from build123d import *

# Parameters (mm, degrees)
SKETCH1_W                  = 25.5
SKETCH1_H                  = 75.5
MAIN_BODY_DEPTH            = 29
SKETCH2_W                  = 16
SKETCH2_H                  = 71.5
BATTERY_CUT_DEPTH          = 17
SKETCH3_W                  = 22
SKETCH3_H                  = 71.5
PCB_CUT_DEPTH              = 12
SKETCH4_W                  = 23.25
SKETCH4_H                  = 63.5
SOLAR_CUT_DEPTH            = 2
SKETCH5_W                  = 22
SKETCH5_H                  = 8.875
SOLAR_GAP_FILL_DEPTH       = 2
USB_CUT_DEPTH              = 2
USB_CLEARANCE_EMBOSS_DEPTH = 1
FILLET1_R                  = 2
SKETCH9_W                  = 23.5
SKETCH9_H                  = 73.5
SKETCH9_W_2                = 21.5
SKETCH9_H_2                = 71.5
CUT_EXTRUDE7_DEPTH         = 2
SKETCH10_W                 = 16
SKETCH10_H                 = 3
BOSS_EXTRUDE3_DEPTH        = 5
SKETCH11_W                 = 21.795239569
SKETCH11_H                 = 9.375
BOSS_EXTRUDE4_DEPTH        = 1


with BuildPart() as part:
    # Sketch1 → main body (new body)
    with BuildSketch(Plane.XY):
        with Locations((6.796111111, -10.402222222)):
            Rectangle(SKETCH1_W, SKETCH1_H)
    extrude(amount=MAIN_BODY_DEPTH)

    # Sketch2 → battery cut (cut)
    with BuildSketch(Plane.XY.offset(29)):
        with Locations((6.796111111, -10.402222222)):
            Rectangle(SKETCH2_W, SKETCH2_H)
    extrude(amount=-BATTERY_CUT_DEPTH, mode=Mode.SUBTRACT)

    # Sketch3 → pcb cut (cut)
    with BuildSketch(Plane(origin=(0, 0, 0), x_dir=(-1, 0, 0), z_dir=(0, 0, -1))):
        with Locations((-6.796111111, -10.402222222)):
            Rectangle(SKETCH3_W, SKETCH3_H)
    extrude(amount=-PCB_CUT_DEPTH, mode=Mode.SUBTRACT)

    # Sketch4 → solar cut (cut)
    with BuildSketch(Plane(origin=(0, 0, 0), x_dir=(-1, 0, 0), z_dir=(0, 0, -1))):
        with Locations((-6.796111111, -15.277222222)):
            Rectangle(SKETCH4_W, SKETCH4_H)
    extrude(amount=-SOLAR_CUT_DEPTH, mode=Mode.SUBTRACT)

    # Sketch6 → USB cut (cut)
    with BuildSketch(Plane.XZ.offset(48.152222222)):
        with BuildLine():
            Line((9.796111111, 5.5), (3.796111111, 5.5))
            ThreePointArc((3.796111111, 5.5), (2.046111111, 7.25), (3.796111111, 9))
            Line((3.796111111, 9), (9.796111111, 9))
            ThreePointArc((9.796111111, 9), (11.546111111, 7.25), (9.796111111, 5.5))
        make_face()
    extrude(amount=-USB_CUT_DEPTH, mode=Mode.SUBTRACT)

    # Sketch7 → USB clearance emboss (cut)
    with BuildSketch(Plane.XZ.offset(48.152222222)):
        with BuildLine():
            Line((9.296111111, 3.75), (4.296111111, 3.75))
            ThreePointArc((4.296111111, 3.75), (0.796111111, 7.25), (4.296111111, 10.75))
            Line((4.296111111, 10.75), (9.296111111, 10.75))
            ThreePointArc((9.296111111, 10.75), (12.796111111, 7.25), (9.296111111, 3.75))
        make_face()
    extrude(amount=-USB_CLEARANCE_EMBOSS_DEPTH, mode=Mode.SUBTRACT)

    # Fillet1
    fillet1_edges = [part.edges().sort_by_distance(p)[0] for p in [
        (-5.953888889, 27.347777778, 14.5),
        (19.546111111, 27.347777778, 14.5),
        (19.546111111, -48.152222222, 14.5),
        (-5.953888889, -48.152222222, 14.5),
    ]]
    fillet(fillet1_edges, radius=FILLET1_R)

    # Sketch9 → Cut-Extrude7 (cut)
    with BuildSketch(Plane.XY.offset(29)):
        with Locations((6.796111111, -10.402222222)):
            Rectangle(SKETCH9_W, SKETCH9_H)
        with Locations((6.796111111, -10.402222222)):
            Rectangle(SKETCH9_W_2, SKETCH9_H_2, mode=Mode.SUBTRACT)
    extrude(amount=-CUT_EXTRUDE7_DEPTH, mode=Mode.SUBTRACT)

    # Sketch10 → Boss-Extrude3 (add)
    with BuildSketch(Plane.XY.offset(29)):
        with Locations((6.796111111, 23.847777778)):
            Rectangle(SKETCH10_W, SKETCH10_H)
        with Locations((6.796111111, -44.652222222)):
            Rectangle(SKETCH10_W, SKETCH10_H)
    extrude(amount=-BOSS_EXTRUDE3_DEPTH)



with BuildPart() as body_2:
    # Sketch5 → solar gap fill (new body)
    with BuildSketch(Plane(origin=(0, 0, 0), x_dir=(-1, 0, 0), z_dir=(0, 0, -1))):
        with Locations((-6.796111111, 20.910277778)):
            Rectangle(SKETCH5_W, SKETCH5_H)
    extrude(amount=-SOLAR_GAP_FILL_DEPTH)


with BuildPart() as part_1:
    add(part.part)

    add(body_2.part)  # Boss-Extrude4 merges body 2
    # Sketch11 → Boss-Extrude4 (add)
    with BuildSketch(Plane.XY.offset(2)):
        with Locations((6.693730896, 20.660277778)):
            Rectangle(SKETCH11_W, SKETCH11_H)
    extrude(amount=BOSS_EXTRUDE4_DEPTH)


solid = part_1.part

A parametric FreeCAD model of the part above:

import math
import FreeCAD as App
import Part
import Sketcher

V = App.Vector


def edges_at(feature, points):
    """Names of the edges that pass closest to the given points."""
    edges = feature.Shape.Edges
    near = lambda p: min(range(len(edges)), key=lambda i: edges[i].distToShape(Part.Vertex(*p))[0])
    return sorted({f"Edge{near(p) + 1}" for p in points})

doc = App.newDocument("Part")
body = doc.addObject("PartDesign::Body", "Body")

# Sketch on XY plane
sketch1 = doc.addObject("Sketcher::SketchObject", "Sketch")
body.addObject(sketch1)
sketch1.AttachmentSupport = (doc.XY_Plane, [""])
sketch1.MapMode = "FlatFace"
sketch1.addGeometry([
    Part.LineSegment(V(-5.953889, 27.347778, 0), V(-5.953889, -48.152222, 0)),
    Part.LineSegment(V(-5.953889, -48.152222, 0), V(19.546111, -48.152222, 0)),
    Part.LineSegment(V(19.546111, -48.152222, 0), V(19.546111, 27.347778, 0)),
    Part.LineSegment(V(19.546111, 27.347778, 0), V(-5.953889, 27.347778, 0)),
], False)
sketch1.addConstraint([
    Sketcher.Constraint("Coincident", 0, 2, 1, 1),
    Sketcher.Constraint("Coincident", 1, 2, 2, 1),
    Sketcher.Constraint("Coincident", 2, 2, 3, 1),
    Sketcher.Constraint("Coincident", 3, 2, 0, 1),
    Sketcher.Constraint("Vertical", 0),
    Sketcher.Constraint("Horizontal", 1),
    Sketcher.Constraint("Vertical", 2),
    Sketcher.Constraint("Horizontal", 3),
    Sketcher.Constraint("DistanceX", 1, 1, 1, 2, 25.5),
    Sketcher.Constraint("DistanceY", 0, 2, 0, 1, 75.5),
    Sketcher.Constraint("DistanceX", 0, 2, -1, 1, 5.953889),
    Sketcher.Constraint("DistanceY", 0, 2, -1, 1, 48.152222),
])
pad1 = doc.addObject("PartDesign::Pad", "Pad")
body.addObject(pad1)
pad1.Profile = sketch1
pad1.Length = 29

# Sketch on XY plane
sketch2 = doc.addObject("Sketcher::SketchObject", "Sketch001")
body.addObject(sketch2)
sketch2.AttachmentSupport = (doc.XY_Plane, [""])
sketch2.MapMode = "FlatFace"
sketch2.AttachmentOffset = App.Placement(V(0, 0, 29), App.Rotation())
sketch2.addGeometry([
    Part.LineSegment(V(-1.203889, 25.347778, 0), V(-1.203889, -46.152222, 0)),
    Part.LineSegment(V(-1.203889, -46.152222, 0), V(14.796111, -46.152222, 0)),
    Part.LineSegment(V(14.796111, -46.152222, 0), V(14.796111, 25.347778, 0)),
    Part.LineSegment(V(14.796111, 25.347778, 0), V(-1.203889, 25.347778, 0)),
], False)
sketch2.addConstraint([
    Sketcher.Constraint("Coincident", 0, 2, 1, 1),
    Sketcher.Constraint("Coincident", 1, 2, 2, 1),
    Sketcher.Constraint("Coincident", 2, 2, 3, 1),
    Sketcher.Constraint("Coincident", 3, 2, 0, 1),
    Sketcher.Constraint("Vertical", 0),
    Sketcher.Constraint("Horizontal", 1),
    Sketcher.Constraint("Vertical", 2),
    Sketcher.Constraint("Horizontal", 3),
    Sketcher.Constraint("DistanceX", 1, 1, 1, 2, 16.0),
    Sketcher.Constraint("DistanceY", 0, 2, 0, 1, 71.5),
    Sketcher.Constraint("DistanceX", 0, 2, -1, 1, 1.203889),
    Sketcher.Constraint("DistanceY", 0, 2, -1, 1, 46.152222),
])
pocket1 = doc.addObject("PartDesign::Pocket", "Pocket")
body.addObject(pocket1)
pocket1.Profile = sketch2
pocket1.Length = 17

# Sketch on XY plane
sketch3 = doc.addObject("Sketcher::SketchObject", "Sketch002")
body.addObject(sketch3)
sketch3.AttachmentSupport = (doc.XY_Plane, [""])
sketch3.MapMode = "FlatFace"
sketch3.addGeometry([
    Part.LineSegment(V(17.796111, 25.347778, 0), V(17.796111, -46.152222, 0)),
    Part.LineSegment(V(17.796111, -46.152222, 0), V(-4.203889, -46.152222, 0)),
    Part.LineSegment(V(-4.203889, -46.152222, 0), V(-4.203889, 25.347778, 0)),
    Part.LineSegment(V(-4.203889, 25.347778, 0), V(17.796111, 25.347778, 0)),
], False)
sketch3.addConstraint([
    Sketcher.Constraint("Coincident", 0, 2, 1, 1),
    Sketcher.Constraint("Coincident", 1, 2, 2, 1),
    Sketcher.Constraint("Coincident", 2, 2, 3, 1),
    Sketcher.Constraint("Coincident", 3, 2, 0, 1),
    Sketcher.Constraint("Vertical", 0),
    Sketcher.Constraint("Horizontal", 1),
    Sketcher.Constraint("Vertical", 2),
    Sketcher.Constraint("Horizontal", 3),
    Sketcher.Constraint("DistanceX", 1, 2, 1, 1, 22.0),
    Sketcher.Constraint("DistanceY", 0, 2, 0, 1, 71.5),
    Sketcher.Constraint("DistanceX", -1, 1, 0, 2, 17.796111),
    Sketcher.Constraint("DistanceY", 0, 2, -1, 1, 46.152222),
])
pocket2 = doc.addObject("PartDesign::Pocket", "Pocket001")
body.addObject(pocket2)
pocket2.Profile = sketch3
pocket2.Length = 12
pocket2.Reversed = True

# Sketch on XY plane
sketch4 = doc.addObject("Sketcher::SketchObject", "Sketch003")
body.addObject(sketch4)
sketch4.AttachmentSupport = (doc.XY_Plane, [""])
sketch4.MapMode = "FlatFace"
sketch4.addGeometry([
    Part.LineSegment(V(18.421111, 16.472778, 0), V(18.421111, -47.027222, 0)),
    Part.LineSegment(V(18.421111, -47.027222, 0), V(-4.828889, -47.027222, 0)),
    Part.LineSegment(V(-4.828889, -47.027222, 0), V(-4.828889, 16.472778, 0)),
    Part.LineSegment(V(-4.828889, 16.472778, 0), V(18.421111, 16.472778, 0)),
], False)
sketch4.addConstraint([
    Sketcher.Constraint("Coincident", 0, 2, 1, 1),
    Sketcher.Constraint("Coincident", 1, 2, 2, 1),
    Sketcher.Constraint("Coincident", 2, 2, 3, 1),
    Sketcher.Constraint("Coincident", 3, 2, 0, 1),
    Sketcher.Constraint("Vertical", 0),
    Sketcher.Constraint("Horizontal", 1),
    Sketcher.Constraint("Vertical", 2),
    Sketcher.Constraint("Horizontal", 3),
    Sketcher.Constraint("DistanceY", 0, 2, 0, 1, 63.5),
    Sketcher.Constraint("DistanceX", 1, 2, 1, 1, 23.25),
    Sketcher.Constraint("DistanceX", -1, 1, 0, 2, 18.421111),
    Sketcher.Constraint("DistanceY", 0, 2, -1, 1, 47.027222),
])
pocket3 = doc.addObject("PartDesign::Pocket", "Pocket002")
body.addObject(pocket3)
pocket3.Profile = sketch4
pocket3.Length = 2
pocket3.Reversed = True

# Sketch on XZ plane
sketch5 = doc.addObject("Sketcher::SketchObject", "Sketch004")
body.addObject(sketch5)
sketch5.AttachmentSupport = (doc.XZ_Plane, [""])
sketch5.MapMode = "FlatFace"
sketch5.AttachmentOffset = App.Placement(V(0, 0, 48.152222), App.Rotation())
sketch5.addGeometry([
    Part.LineSegment(V(3.796111, 5.5, 0), V(9.796111, 5.5, 0)),
    Part.ArcOfCircle(Part.Circle(V(9.796111, 7.25, 0), V(0, 0, 1), 1.75), math.radians(-90), math.radians(90)),
    Part.LineSegment(V(9.796111, 9, 0), V(3.796111, 9, 0)),
    Part.ArcOfCircle(Part.Circle(V(3.796111, 7.25, 0), V(0, 0, 1), 1.75), math.radians(90), math.radians(270)),
], False)
sketch5.addConstraint([
    Sketcher.Constraint("Tangent", 0, 2, 1, 1),
    Sketcher.Constraint("Tangent", 1, 2, 2, 1),
    Sketcher.Constraint("Tangent", 2, 2, 3, 1),
    Sketcher.Constraint("Tangent", 3, 2, 0, 1),
    Sketcher.Constraint("Horizontal", 0),
    Sketcher.Constraint("Horizontal", 2),
    Sketcher.Constraint("DistanceX", 0, 1, 0, 2, 6.0),
    Sketcher.Constraint("Radius", 1, 1.75),
    Sketcher.Constraint("DistanceY", -1, 1, 1, 2, 9.0),
    Sketcher.Constraint("DistanceX", -1, 1, 1, 3, 9.796111),
])
pocket4 = doc.addObject("PartDesign::Pocket", "Pocket003")
body.addObject(pocket4)
pocket4.Profile = sketch5
pocket4.Length = 2

# Sketch on XZ plane
sketch6 = doc.addObject("Sketcher::SketchObject", "Sketch005")
body.addObject(sketch6)
sketch6.AttachmentSupport = (doc.XZ_Plane, [""])
sketch6.MapMode = "FlatFace"
sketch6.AttachmentOffset = App.Placement(V(0, 0, 48.152222), App.Rotation())
sketch6.addGeometry([
    Part.LineSegment(V(4.296111, 3.75, 0), V(9.296111, 3.75, 0)),
    Part.ArcOfCircle(Part.Circle(V(9.296111, 7.25, 0), V(0, 0, 1), 3.5), math.radians(-90), math.radians(90)),
    Part.LineSegment(V(9.296111, 10.75, 0), V(4.296111, 10.75, 0)),
    Part.ArcOfCircle(Part.Circle(V(4.296111, 7.25, 0), V(0, 0, 1), 3.5), math.radians(90), math.radians(270)),
], False)
sketch6.addConstraint([
    Sketcher.Constraint("Tangent", 0, 2, 1, 1),
    Sketcher.Constraint("Tangent", 1, 2, 2, 1),
    Sketcher.Constraint("Tangent", 2, 2, 3, 1),
    Sketcher.Constraint("Tangent", 3, 2, 0, 1),
    Sketcher.Constraint("Horizontal", 0),
    Sketcher.Constraint("Horizontal", 2),
    Sketcher.Constraint("Radius", 1, 3.5),
    Sketcher.Constraint("DistanceX", 0, 1, 0, 2, 5.0),
    Sketcher.Constraint("DistanceY", -1, 1, 1, 3, 7.25),
    Sketcher.Constraint("DistanceX", -1, 1, 1, 3, 9.296111),
])
pocket5 = doc.addObject("PartDesign::Pocket", "Pocket004")
body.addObject(pocket5)
pocket5.Profile = sketch6
pocket5.Length = 1
doc.recompute()

fillet = doc.addObject("PartDesign::Fillet", "Fillet")
body.addObject(fillet)
fillet.Base = (pocket5, edges_at(pocket5, [
    (-5.954, 27.348, 14.5),
    (19.546, 27.348, 14.5),
    (19.546, -48.152, 14.5),
    (-5.954, -48.152, 14.5),
]))
fillet.Radius = 2

# Sketch on XY plane
sketch7 = doc.addObject("Sketcher::SketchObject", "Sketch006")
body.addObject(sketch7)
sketch7.AttachmentSupport = (doc.XY_Plane, [""])
sketch7.MapMode = "FlatFace"
sketch7.AttachmentOffset = App.Placement(V(0, 0, 29), App.Rotation())
sketch7.addGeometry([
    Part.LineSegment(V(-4.953889, 26.347778, 0), V(-4.953889, -47.152222, 0)),  # 0
    Part.LineSegment(V(-4.953889, -47.152222, 0), V(18.546111, -47.152222, 0)),  # 1
    Part.LineSegment(V(18.546111, -47.152222, 0), V(18.546111, 26.347778, 0)),  # 2
    Part.LineSegment(V(18.546111, 26.347778, 0), V(-4.953889, 26.347778, 0)),  # 3
    Part.LineSegment(V(17.546111, -46.152222, 0), V(-3.953889, -46.152222, 0)),  # 4
    Part.LineSegment(V(-3.953889, -46.152222, 0), V(-3.953889, 25.347778, 0)),  # 5
    Part.LineSegment(V(-3.953889, 25.347778, 0), V(17.546111, 25.347778, 0)),  # 6
    Part.LineSegment(V(17.546111, 25.347778, 0), V(17.546111, -46.152222, 0)),  # 7
], False)
sketch7.addConstraint([
    Sketcher.Constraint("Coincident", 0, 2, 1, 1),
    Sketcher.Constraint("Coincident", 1, 2, 2, 1),
    Sketcher.Constraint("Coincident", 2, 2, 3, 1),
    Sketcher.Constraint("Coincident", 3, 2, 0, 1),
    Sketcher.Constraint("Coincident", 4, 2, 5, 1),
    Sketcher.Constraint("Coincident", 5, 2, 6, 1),
    Sketcher.Constraint("Coincident", 6, 2, 7, 1),
    Sketcher.Constraint("Coincident", 7, 2, 4, 1),
    Sketcher.Constraint("Vertical", 0),
    Sketcher.Constraint("Horizontal", 1),
    Sketcher.Constraint("Vertical", 2),
    Sketcher.Constraint("Horizontal", 3),
    Sketcher.Constraint("Horizontal", 4),
    Sketcher.Constraint("Vertical", 5),
    Sketcher.Constraint("Horizontal", 6),
    Sketcher.Constraint("Vertical", 7),
    Sketcher.Constraint("DistanceX", 1, 1, 1, 2, 23.5),
    Sketcher.Constraint("DistanceX", 4, 2, 4, 1, 21.5),
    Sketcher.Constraint("DistanceY", 0, 2, 0, 1, 73.5),
    Sketcher.Constraint("DistanceY", 5, 1, 5, 2, 71.5),
    Sketcher.Constraint("DistanceX", 0, 2, 4, 2, 1.0),
    Sketcher.Constraint("DistanceY", 0, 2, 4, 2, 1.0),
    Sketcher.Constraint("DistanceX", 0, 2, -1, 1, 4.953889),
    Sketcher.Constraint("DistanceY", 0, 2, -1, 1, 47.152222),
])
pocket6 = doc.addObject("PartDesign::Pocket", "Pocket005")
body.addObject(pocket6)
pocket6.Profile = sketch7
pocket6.Length = 2

# Sketch on XY plane
sketch8 = doc.addObject("Sketcher::SketchObject", "Sketch007")
body.addObject(sketch8)
sketch8.AttachmentSupport = (doc.XY_Plane, [""])
sketch8.MapMode = "FlatFace"
sketch8.AttachmentOffset = App.Placement(V(0, 0, 29), App.Rotation())
sketch8.addGeometry([
    Part.LineSegment(V(-1.203889, 25.347778, 0), V(-1.203889, 22.347778, 0)),  # 0
    Part.LineSegment(V(-1.203889, 22.347778, 0), V(14.796111, 22.347778, 0)),  # 1
    Part.LineSegment(V(14.796111, 22.347778, 0), V(14.796111, 25.347778, 0)),  # 2
    Part.LineSegment(V(14.796111, 25.347778, 0), V(-1.203889, 25.347778, 0)),  # 3
    Part.LineSegment(V(-1.203889, -43.152222, 0), V(-1.203889, -46.152222, 0)),  # 4
    Part.LineSegment(V(-1.203889, -46.152222, 0), V(14.796111, -46.152222, 0)),  # 5
    Part.LineSegment(V(14.796111, -46.152222, 0), V(14.796111, -43.152222, 0)),  # 6
    Part.LineSegment(V(14.796111, -43.152222, 0), V(-1.203889, -43.152222, 0)),  # 7
], False)
sketch8.addConstraint([
    Sketcher.Constraint("Coincident", 0, 2, 1, 1),
    Sketcher.Constraint("Coincident", 1, 2, 2, 1),
    Sketcher.Constraint("Coincident", 2, 2, 3, 1),
    Sketcher.Constraint("Coincident", 3, 2, 0, 1),
    Sketcher.Constraint("Coincident", 4, 2, 5, 1),
    Sketcher.Constraint("Coincident", 5, 2, 6, 1),
    Sketcher.Constraint("Coincident", 6, 2, 7, 1),
    Sketcher.Constraint("Coincident", 7, 2, 4, 1),
    Sketcher.Constraint("Vertical", 0),
    Sketcher.Constraint("Horizontal", 1),
    Sketcher.Constraint("Vertical", 2),
    Sketcher.Constraint("Horizontal", 3),
    Sketcher.Constraint("Vertical", 4),
    Sketcher.Constraint("Horizontal", 5),
    Sketcher.Constraint("Vertical", 6),
    Sketcher.Constraint("Horizontal", 7),
    Sketcher.Constraint("Vertical", 3, 2, 4, 2),
    Sketcher.Constraint("Vertical", 2, 2, 5, 2),
    Sketcher.Constraint("Equal", 2, 4),
    Sketcher.Constraint("DistanceX", 1, 1, 1, 2, 16.0),
    Sketcher.Constraint("DistanceY", 0, 2, 0, 1, 3.0),
    Sketcher.Constraint("DistanceY", 4, 2, 0, 2, 68.5),
    Sketcher.Constraint("DistanceX", 0, 2, -1, 1, 1.203889),
    Sketcher.Constraint("DistanceY", -1, 1, 0, 2, 22.347778),
])
pad2 = doc.addObject("PartDesign::Pad", "Pad001")
body.addObject(pad2)
pad2.Profile = sketch8
pad2.Length = 5
pad2.Reversed = True
body2 = doc.addObject("PartDesign::Body", "Body001")

# Sketch on XY plane
sketch9 = doc.addObject("Sketcher::SketchObject", "Sketch008")
body2.addObject(sketch9)
sketch9.AttachmentSupport = (doc.getObject("XY_Plane001"), [""])
sketch9.MapMode = "FlatFace"
sketch9.addGeometry([
    Part.LineSegment(V(17.796111, 25.347778, 0), V(17.796111, 16.472778, 0)),
    Part.LineSegment(V(17.796111, 16.472778, 0), V(-4.203889, 16.472778, 0)),
    Part.LineSegment(V(-4.203889, 16.472778, 0), V(-4.203889, 25.347778, 0)),
    Part.LineSegment(V(-4.203889, 25.347778, 0), V(17.796111, 25.347778, 0)),
], False)
sketch9.addConstraint([
    Sketcher.Constraint("Coincident", 0, 2, 1, 1),
    Sketcher.Constraint("Coincident", 1, 2, 2, 1),
    Sketcher.Constraint("Coincident", 2, 2, 3, 1),
    Sketcher.Constraint("Coincident", 3, 2, 0, 1),
    Sketcher.Constraint("Vertical", 0),
    Sketcher.Constraint("Horizontal", 1),
    Sketcher.Constraint("Vertical", 2),
    Sketcher.Constraint("Horizontal", 3),
    Sketcher.Constraint("DistanceX", 1, 2, 1, 1, 22.0),
    Sketcher.Constraint("DistanceY", 0, 2, 0, 1, 8.875),
    Sketcher.Constraint("DistanceX", -1, 1, 0, 2, 17.796111),
    Sketcher.Constraint("DistanceY", -1, 1, 0, 2, 16.472778),
])
pad3 = doc.addObject("PartDesign::Pad", "Pad002")
body2.addObject(pad3)
pad3.Profile = sketch9
pad3.Length = 2
doc.recompute()

boolean = doc.addObject("PartDesign::Boolean", "Boolean")
body.addObject(boolean)
boolean.Type = "Fuse"
boolean.addObjects([body2])

# Sketch on XY plane
sketch10 = doc.addObject("Sketcher::SketchObject", "Sketch009")
body.addObject(sketch10)
sketch10.AttachmentSupport = (doc.XY_Plane, [""])
sketch10.MapMode = "FlatFace"
sketch10.AttachmentOffset = App.Placement(V(0, 0, 2), App.Rotation())
sketch10.addGeometry([
    Part.LineSegment(V(-4.203889, 25.347778, 0), V(-4.203889, 15.972778, 0)),
    Part.LineSegment(V(-4.203889, 15.972778, 0), V(17.591351, 15.972778, 0)),
    Part.LineSegment(V(17.591351, 15.972778, 0), V(17.591351, 25.347778, 0)),
    Part.LineSegment(V(17.591351, 25.347778, 0), V(-4.203889, 25.347778, 0)),
], False)
sketch10.addConstraint([
    Sketcher.Constraint("Coincident", 0, 2, 1, 1),
    Sketcher.Constraint("Coincident", 1, 2, 2, 1),
    Sketcher.Constraint("Coincident", 2, 2, 3, 1),
    Sketcher.Constraint("Coincident", 3, 2, 0, 1),
    Sketcher.Constraint("Vertical", 0),
    Sketcher.Constraint("Horizontal", 1),
    Sketcher.Constraint("Vertical", 2),
    Sketcher.Constraint("Horizontal", 3),
    Sketcher.Constraint("DistanceY", 0, 2, 0, 1, 9.375),
    Sketcher.Constraint("DistanceX", 1, 1, 1, 2, 21.79524),
    Sketcher.Constraint("DistanceX", 0, 2, -1, 1, 4.203889),
    Sketcher.Constraint("DistanceY", -1, 1, 0, 2, 15.972778),
])
pad4 = doc.addObject("PartDesign::Pad", "Pad003")
body.addObject(pad4)
pad4.Profile = sketch10
pad4.Length = 1

doc.recompute()
